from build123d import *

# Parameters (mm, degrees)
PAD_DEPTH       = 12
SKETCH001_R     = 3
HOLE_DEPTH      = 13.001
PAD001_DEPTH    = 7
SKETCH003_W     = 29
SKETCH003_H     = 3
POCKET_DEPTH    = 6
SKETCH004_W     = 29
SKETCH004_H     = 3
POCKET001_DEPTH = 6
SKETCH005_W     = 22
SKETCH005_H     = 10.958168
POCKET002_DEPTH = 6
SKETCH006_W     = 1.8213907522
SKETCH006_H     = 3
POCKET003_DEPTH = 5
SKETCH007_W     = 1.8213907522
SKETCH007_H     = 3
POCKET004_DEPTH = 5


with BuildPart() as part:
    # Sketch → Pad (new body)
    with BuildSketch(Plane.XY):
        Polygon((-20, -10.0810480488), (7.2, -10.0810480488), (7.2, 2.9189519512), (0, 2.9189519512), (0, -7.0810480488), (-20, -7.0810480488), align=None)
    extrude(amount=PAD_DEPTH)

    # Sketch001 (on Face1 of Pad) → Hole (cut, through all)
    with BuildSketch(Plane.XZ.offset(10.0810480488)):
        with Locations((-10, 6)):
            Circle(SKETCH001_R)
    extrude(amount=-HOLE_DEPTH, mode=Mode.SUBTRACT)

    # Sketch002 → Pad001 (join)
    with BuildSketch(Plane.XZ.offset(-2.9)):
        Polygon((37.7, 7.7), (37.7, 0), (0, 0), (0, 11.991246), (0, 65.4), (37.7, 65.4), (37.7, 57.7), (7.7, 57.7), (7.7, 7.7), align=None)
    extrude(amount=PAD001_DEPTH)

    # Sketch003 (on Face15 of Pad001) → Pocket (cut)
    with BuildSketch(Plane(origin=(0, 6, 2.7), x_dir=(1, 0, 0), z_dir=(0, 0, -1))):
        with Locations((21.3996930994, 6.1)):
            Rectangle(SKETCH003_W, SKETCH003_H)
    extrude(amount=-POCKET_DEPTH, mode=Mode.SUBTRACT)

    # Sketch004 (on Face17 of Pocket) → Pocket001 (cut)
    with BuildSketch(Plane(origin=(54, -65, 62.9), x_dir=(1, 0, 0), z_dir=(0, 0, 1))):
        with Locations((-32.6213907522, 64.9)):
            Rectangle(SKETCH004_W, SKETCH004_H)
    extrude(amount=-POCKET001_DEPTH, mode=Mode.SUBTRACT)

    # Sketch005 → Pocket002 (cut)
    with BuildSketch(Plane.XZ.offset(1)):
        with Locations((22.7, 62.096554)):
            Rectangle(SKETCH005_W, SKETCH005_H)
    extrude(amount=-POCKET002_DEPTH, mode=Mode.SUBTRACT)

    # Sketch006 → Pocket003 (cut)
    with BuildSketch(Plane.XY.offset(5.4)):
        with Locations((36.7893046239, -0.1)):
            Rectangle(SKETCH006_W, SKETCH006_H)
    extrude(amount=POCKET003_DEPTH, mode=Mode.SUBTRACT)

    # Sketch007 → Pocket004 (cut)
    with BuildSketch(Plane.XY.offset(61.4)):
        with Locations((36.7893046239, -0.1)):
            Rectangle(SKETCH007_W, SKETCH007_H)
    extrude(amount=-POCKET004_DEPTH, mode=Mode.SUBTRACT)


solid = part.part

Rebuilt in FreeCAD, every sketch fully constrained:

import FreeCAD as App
import Part
import Sketcher
from FreeCAD import Vector

doc = App.newDocument("Part")
body = doc.addObject("PartDesign::Body", "Body")

# Sketch on XY plane
sketch1 = doc.addObject("Sketcher::SketchObject", "Sketch")
body.addObject(sketch1)
sketch1.AttachmentSupport = (doc.XY_Plane, [""])
sketch1.MapMode = "FlatFace"
sketch1.addGeometry(Part.LineSegment(Vector(-20, -10.1, 0), Vector(7.2, -10.1, 0)), False)
sketch1.addGeometry(Part.LineSegment(Vector(7.2, -10.1, 0), Vector(7.2, 2.9, 0)), False)
sketch1.addGeometry(Part.LineSegment(Vector(7.2, 2.9, 0), Vector(0, 2.9, 0)), False)
sketch1.addGeometry(Part.LineSegment(Vector(0, 2.9, 0), Vector(0, -7.1, 0)), False)
sketch1.addGeometry(Part.LineSegment(Vector(0, -7.1, 0), Vector(-20, -7.1, 0)), False)
sketch1.addGeometry(Part.LineSegment(Vector(-20, -7.1, 0), Vector(-20, -10.1, 0)), False)
sketch1.addConstraint(Sketcher.Constraint("Coincident", 0, 2, 1, 1))
sketch1.addConstraint(Sketcher.Constraint("Coincident", 1, 2, 2, 1))
sketch1.addConstraint(Sketcher.Constraint("Coincident", 2, 2, 3, 1))
sketch1.addConstraint(Sketcher.Constraint("Coincident", 3, 2, 4, 1))
sketch1.addConstraint(Sketcher.Constraint("Coincident", 4, 2, 5, 1))
sketch1.addConstraint(Sketcher.Constraint("Coincident", 5, 2, 0, 1))
sketch1.addConstraint(Sketcher.Constraint("Horizontal", 0))
sketch1.addConstraint(Sketcher.Constraint("Vertical", 1))
sketch1.addConstraint(Sketcher.Constraint("Horizontal", 2))
sketch1.addConstraint(Sketcher.Constraint("Vertical", 3))
sketch1.addConstraint(Sketcher.Constraint("Horizontal", 4))
sketch1.addConstraint(Sketcher.Constraint("Vertical", 5))
sketch1.addConstraint(Sketcher.Constraint("PointOnObject", 2, 2, -2))
sketch1.addConstraint(Sketcher.Constraint("DistanceX", 4, 2, 4, 1, 20.0))
sketch1.addConstraint(Sketcher.Constraint("DistanceY", 1, 1, 1, 2, 13.0))
sketch1.addConstraint(Sketcher.Constraint("DistanceY", 3, 2, 3, 1, 10.0))
sketch1.addConstraint(Sketcher.Constraint("DistanceX", 0, 1, 0, 2, 27.2))
sketch1.addConstraint(Sketcher.Constraint("DistanceY", 0, 2, -1, 1, 10.081048))
pad1 = doc.addObject("PartDesign::Pad", "Pad")
body.addObject(pad1)
pad1.Profile = sketch1
pad1.Length = 12

# Sketch on XZ plane
sketch2 = doc.addObject("Sketcher::SketchObject", "Sketch001")
body.addObject(sketch2)
sketch2.AttachmentSupport = (doc.XZ_Plane, [""])
sketch2.MapMode = "FlatFace"
sketch2.AttachmentOffset = App.Placement(Vector(0, 0, 10.081048), App.Rotation())
sketch2.addGeometry(Part.Circle(Vector(-10, 6, 0), Vector(0, 0, 1), 3), False)
sketch2.addConstraint(Sketcher.Constraint("Diameter", 0, 6.0))
sketch2.addConstraint(Sketcher.Constraint("DistanceX", 0, 3, -1, 1, 10.0))
sketch2.addConstraint(Sketcher.Constraint("DistanceY", -1, 1, 0, 3, 6.0))
pocket1 = doc.addObject("PartDesign::Pocket", "Pocket")
body.addObject(pocket1)
pocket1.Profile = sketch2
pocket1.Type = "ThroughAll"

# Sketch on XZ plane
sketch3 = doc.addObject("Sketcher::SketchObject", "Sketch002")
body.addObject(sketch3)
sketch3.AttachmentSupport = (doc.XZ_Plane, [""])
sketch3.MapMode = "FlatFace"
sketch3.AttachmentOffset = App.Placement(Vector(0, 0, -2.9), App.Rotation())
sketch3.addGeometry(Part.LineSegment(Vector(38, 0, 0), Vector(38, 8, 0)), False)
sketch3.addGeometry(Part.LineSegment(Vector(38, 8, 0), Vector(8, 8, 0)), False)
sketch3.addGeometry(Part.LineSegment(Vector(8, 8, 0), Vector(8, 58, 0)), False)
sketch3.addGeometry(Part.LineSegment(Vector(8, 58, 0), Vector(38, 58, 0)), False)
sketch3.addGeometry(Part.LineSegment(Vector(38, 58, 0), Vector(38, 65, 0)), False)
sketch3.addGeometry(Part.LineSegment(Vector(38, 65, 0), Vector(0, 65, 0)), False)
sketch3.addGeometry(Part.LineSegment(Vector(0, 65, 0), Vector(0, 0, 0)), False)
sketch3.addGeometry(Part.LineSegment(Vector(0, 0, 0), Vector(38, 0, 0)), False)
sketch3.addConstraint(Sketcher.Constraint("Coincident", 0, 2, 1, 1))
sketch3.addConstraint(Sketcher.Constraint("Coincident", 1, 2, 2, 1))
sketch3.addConstraint(Sketcher.Constraint("Coincident", 2, 2, 3, 1))
sketch3.addConstraint(Sketcher.Constraint("Coincident", 3, 2, 4, 1))
sketch3.addConstraint(Sketcher.Constraint("Coincident", 4, 2, 5, 1))
sketch3.addConstraint(Sketcher.Constraint("Coincident", 5, 2, 6, 1))
sketch3.addConstraint(Sketcher.Constraint("Coincident", 6, 2, 7, 1))
sketch3.addConstraint(Sketcher.Constraint("Coincident", 7, 2, 0, 1))
sketch3.addConstraint(Sketcher.Constraint("Vertical", 0))
sketch3.addConstraint(Sketcher.Constraint("Horizontal", 1))
sketch3.addConstraint(Sketcher.Constraint("Vertical", 2))
sketch3.addConstraint(Sketcher.Constraint("Horizontal", 3))
sketch3.addConstraint(Sketcher.Constraint("Vertical", 4))
sketch3.addConstraint(Sketcher.Constraint("Horizontal", 5))
sketch3.addConstraint(Sketcher.Constraint("Vertical", 6))
sketch3.addConstraint(Sketcher.Constraint("Horizontal", 7))
sketch3.addConstraint(Sketcher.Constraint("Coincident", 6, 2, -1, 1))
sketch3.addConstraint(Sketcher.Constraint("Vertical", 0, 2, 3, 2))
sketch3.addConstraint(Sketcher.Constraint("Equal", 0, 4))
sketch3.addConstraint(Sketcher.Constraint("DistanceX", 1, 2, 1, 1, 30.0))
sketch3.addConstraint(Sketcher.Constraint("DistanceY", 2, 1, 2, 2, 50.0))
sketch3.addConstraint(Sketcher.Constraint("DistanceX", 5, 2, 5, 1, 37.7))
sketch3.addConstraint(Sketcher.Constraint("DistanceY", 0, 1, 0, 2, 7.7))
pad2 = doc.addObject("PartDesign::Pad", "Pad001")
body.addObject(pad2)
pad2.Profile = sketch3
pad2.Length = 7

# Sketch on XY plane
sketch4 = doc.addObject("Sketcher::SketchObject", "Sketch003")
body.addObject(sketch4)
sketch4.AttachmentSupport = (doc.XY_Plane, [""])
sketch4.MapMode = "FlatFace"
sketch4.AttachmentOffset = App.Placement(Vector(0, 0, 2.7), App.Rotation())
sketch4.addGeometry(Part.LineSegment(Vector(6.9, -1.6, 0), Vector(6.9, 1.4, 0)), False)
sketch4.addGeometry(Part.LineSegment(Vector(6.9, 1.4, 0), Vector(35.9, 1.4, 0)), False)
sketch4.addGeometry(Part.LineSegment(Vector(35.9, 1.4, 0), Vector(35.9, -1.6, 0)), False)
sketch4.addGeometry(Part.LineSegment(Vector(35.9, -1.6, 0), Vector(6.9, -1.6, 0)), False)
sketch4.addConstraint(Sketcher.Constraint("Coincident", 0, 2, 1, 1))
sketch4.addConstraint(Sketcher.Constraint("Coincident", 1, 2, 2, 1))
sketch4.addConstraint(Sketcher.Constraint("Coincident", 2, 2, 3, 1))
sketch4.addConstraint(Sketcher.Constraint("Coincident", 3, 2, 0, 1))
sketch4.addConstraint(Sketcher.Constraint("Vertical", 0))
sketch4.addConstraint(Sketcher.Constraint("Horizontal", 1))
sketch4.addConstraint(Sketcher.Constraint("Vertical", 2))
sketch4.addConstraint(Sketcher.Constraint("Horizontal", 3))
sketch4.addConstraint(Sketcher.Constraint("DistanceX", 1, 1, 1, 2, 29.0))
sketch4.addConstraint(Sketcher.Constraint("DistanceY", 0, 1, 0, 2, 3.0))
sketch4.addConstraint(Sketcher.Constraint("DistanceY", -1, 1, 0, 2, 1.4))
sketch4.addConstraint(Sketcher.Constraint("DistanceX", -1, 1, 0, 2, 6.899693))
pocket2 = doc.addObject("PartDesign::Pocket", "Pocket001")
body.addObject(pocket2)
pocket2.Profile = sketch4
pocket2.Length = 6
pocket2.Reversed = True

# Sketch on XY plane
sketch5 = doc.addObject("Sketcher::SketchObject", "Sketch004")
body.addObject(sketch5)
sketch5.AttachmentSupport = (doc.XY_Plane, [""])
sketch5.MapMode = "FlatFace"
sketch5.AttachmentOffset = App.Placement(Vector(0, 0, 62.9), App.Rotation())
sketch5.addGeometry(Part.LineSegment(Vector(6.9, 1.4, 0), Vector(6.9, -1.6, 0)), False)
sketch5.addGeometry(Part.LineSegment(Vector(6.9, -1.6, 0), Vector(35.9, -1.6, 0)), False)
sketch5.addGeometry(Part.LineSegment(Vector(35.9, -1.6, 0), Vector(35.9, 1.4, 0)), False)
sketch5.addGeometry(Part.LineSegment(Vector(35.9, 1.4, 0), Vector(6.9, 1.4, 0)), False)
sketch5.addConstraint(Sketcher.Constraint("Coincident", 0, 2, 1, 1))
sketch5.addConstraint(Sketcher.Constraint("Coincident", 1, 2, 2, 1))
sketch5.addConstraint(Sketcher.Constraint("Coincident", 2, 2, 3, 1))
sketch5.addConstraint(Sketcher.Constraint("Coincident", 3, 2, 0, 1))
sketch5.addConstraint(Sketcher.Constraint("Vertical", 0))
sketch5.addConstraint(Sketcher.Constraint("Horizontal", 1))
sketch5.addConstraint(Sketcher.Constraint("Vertical", 2))
sketch5.addConstraint(Sketcher.Constraint("Horizontal", 3))
sketch5.addConstraint(Sketcher.Constraint("DistanceX", 1, 1, 1, 2, 29.0))
sketch5.addConstraint(Sketcher.Constraint("DistanceY", 0, 2, 0, 1, 3.0))
sketch5.addConstraint(Sketcher.Constraint("DistanceY", 0, 2, -1, 1, 1.6))
sketch5.addConstraint(Sketcher.Constraint("DistanceX", -1, 1, 0, 2, 6.878609))
pocket3 = doc.addObject("PartDesign::Pocket", "Pocket002")
body.addObject(pocket3)
pocket3.Profile = sketch5
pocket3.Length = 6

# Sketch on XZ plane
sketch6 = doc.addObject("Sketcher::SketchObject", "Sketch005")
body.addObject(sketch6)
sketch6.AttachmentSupport = (doc.XZ_Plane, [""])
sketch6.MapMode = "FlatFace"
sketch6.AttachmentOffset = App.Placement(Vector(0, 0, 1), App.Rotation())
sketch6.addGeometry(Part.LineSegment(Vector(12, 68, 0), Vector(12, 57, 0)), False)
sketch6.addGeometry(Part.LineSegment(Vector(12, 57, 0), Vector(34, 57, 0)), False)
sketch6.addGeometry(Part.LineSegment(Vector(34, 57, 0), Vector(34, 68, 0)), False)
sketch6.addGeometry(Part.LineSegment(Vector(34, 68, 0), Vector(12, 68, 0)), False)
sketch6.addConstraint(Sketcher.Constraint("Coincident", 0, 2, 1, 1))
sketch6.addConstraint(Sketcher.Constraint("Coincident", 1, 2, 2, 1))
sketch6.addConstraint(Sketcher.Constraint("Coincident", 2, 2, 3, 1))
sketch6.addConstraint(Sketcher.Constraint("Coincident", 3, 2, 0, 1))
sketch6.addConstraint(Sketcher.Constraint("Vertical", 0))
sketch6.addConstraint(Sketcher.Constraint("Horizontal", 1))
sketch6.addConstraint(Sketcher.Constraint("Vertical", 2))
sketch6.addConstraint(Sketcher.Constraint("Horizontal", 3))
sketch6.addConstraint(Sketcher.Constraint("DistanceX", 1, 1, 1, 2, 22.0))
sketch6.addConstraint(Sketcher.Constraint("DistanceX", -1, 1, 0, 2, 11.7))
sketch6.addConstraint(Sketcher.Constraint("DistanceY", 0, 2, 0, 1, 10.958168))
sketch6.addConstraint(Sketcher.Constraint("DistanceY", -1, 1, 0, 2, 56.61747))
pocket4 = doc.addObject("PartDesign::Pocket", "Pocket003")
body.addObject(pocket4)
pocket4.Profile = sketch6
pocket4.Length = 6

# Sketch on XY plane
sketch7 = doc.addObject("Sketcher::SketchObject", "Sketch006")
body.addObject(sketch7)
sketch7.AttachmentSupport = (doc.XY_Plane, [""])
sketch7.MapMode = "FlatFace"
sketch7.AttachmentOffset = App.Placement(Vector(0, 0, 5.4), App.Rotation())
sketch7.addGeometry(Part.LineSegment(Vector(35.9, 1.4, 0), Vector(35.9, -1.6, 0)), False)
sketch7.addGeometry(Part.LineSegment(Vector(35.9, -1.6, 0), Vector(37.7, -1.6, 0)), False)
sketch7.addGeometry(Part.LineSegment(Vector(37.7, -1.6, 0), Vector(37.7, 1.4, 0)), False)
sketch7.addGeometry(Part.LineSegment(Vector(37.7, 1.4, 0), Vector(35.9, 1.4, 0)), False)
sketch7.addConstraint(Sketcher.Constraint("Coincident", 0, 2, 1, 1))
sketch7.addConstraint(Sketcher.Constraint("Coincident", 1, 2, 2, 1))
sketch7.addConstraint(Sketcher.Constraint("Coincident", 2, 2, 3, 1))
sketch7.addConstraint(Sketcher.Constraint("Coincident", 3, 2, 0, 1))
sketch7.addConstraint(Sketcher.Constraint("Vertical", 0))
sketch7.addConstraint(Sketcher.Constraint("Horizontal", 1))
sketch7.addConstraint(Sketcher.Constraint("Vertical", 2))
sketch7.addConstraint(Sketcher.Constraint("Horizontal", 3))
sketch7.addConstraint(Sketcher.Constraint("DistanceY", 0, 2, 0, 1, 3.0))
sketch7.addConstraint(Sketcher.Constraint("DistanceY", 0, 2, -1, 1, 1.6))
sketch7.addConstraint(Sketcher.Constraint("DistanceX", -1, 1, 1, 2, 37.7))
sketch7.addConstraint(Sketcher.Constraint("DistanceX", 1, 1, 1, 2, 1.821391))
pocket5 = doc.addObject("PartDesign::Pocket", "Pocket004")
body.addObject(pocket5)
pocket5.Profile = sketch7
pocket5.Length = 5
pocket5.Reversed = True

# Sketch on XY plane
sketch8 = doc.addObject("Sketcher::SketchObject", "Sketch007")
body.addObject(sketch8)
sketch8.AttachmentSupport = (doc.XY_Plane, [""])
sketch8.MapMode = "FlatFace"
sketch8.AttachmentOffset = App.Placement(Vector(0, 0, 61.4), App.Rotation())
sketch8.addGeometry(Part.LineSegment(Vector(35.9, 1.4, 0), Vector(35.9, -1.6, 0)), False)
sketch8.addGeometry(Part.LineSegment(Vector(35.9, -1.6, 0), Vector(37.7, -1.6, 0)), False)
sketch8.addGeometry(Part.LineSegment(Vector(37.7, -1.6, 0), Vector(37.7, 1.4, 0)), False)
sketch8.addGeometry(Part.LineSegment(Vector(37.7, 1.4, 0), Vector(35.9, 1.4, 0)), False)
sketch8.addConstraint(Sketcher.Constraint("Coincident", 0, 2, 1, 1))
sketch8.addConstraint(Sketcher.Constraint("Coincident", 1, 2, 2, 1))
sketch8.addConstraint(Sketcher.Constraint("Coincident", 2, 2, 3, 1))
sketch8.addConstraint(Sketcher.Constraint("Coincident", 3, 2, 0, 1))
sketch8.addConstraint(Sketcher.Constraint("Vertical", 0))
sketch8.addConstraint(Sketcher.Constraint("Horizontal", 1))
sketch8.addConstraint(Sketcher.Constraint("Vertical", 2))
sketch8.addConstraint(Sketcher.Constraint("Horizontal", 3))
sketch8.addConstraint(Sketcher.Constraint("DistanceY", 0, 2, 0, 1, 3.0))
sketch8.addConstraint(Sketcher.Constraint("DistanceY", 0, 2, -1, 1, 1.6))
sketch8.addConstraint(Sketcher.Constraint("DistanceX", -1, 1, 1, 2, 37.7))
sketch8.addConstraint(Sketcher.Constraint("DistanceX", 1, 1, 1, 2, 1.821391))
pocket6 = doc.addObject("PartDesign::Pocket", "Pocket005")
body.addObject(pocket6)
pocket6.Profile = sketch8
pocket6.Length = 5

doc.recompute()
